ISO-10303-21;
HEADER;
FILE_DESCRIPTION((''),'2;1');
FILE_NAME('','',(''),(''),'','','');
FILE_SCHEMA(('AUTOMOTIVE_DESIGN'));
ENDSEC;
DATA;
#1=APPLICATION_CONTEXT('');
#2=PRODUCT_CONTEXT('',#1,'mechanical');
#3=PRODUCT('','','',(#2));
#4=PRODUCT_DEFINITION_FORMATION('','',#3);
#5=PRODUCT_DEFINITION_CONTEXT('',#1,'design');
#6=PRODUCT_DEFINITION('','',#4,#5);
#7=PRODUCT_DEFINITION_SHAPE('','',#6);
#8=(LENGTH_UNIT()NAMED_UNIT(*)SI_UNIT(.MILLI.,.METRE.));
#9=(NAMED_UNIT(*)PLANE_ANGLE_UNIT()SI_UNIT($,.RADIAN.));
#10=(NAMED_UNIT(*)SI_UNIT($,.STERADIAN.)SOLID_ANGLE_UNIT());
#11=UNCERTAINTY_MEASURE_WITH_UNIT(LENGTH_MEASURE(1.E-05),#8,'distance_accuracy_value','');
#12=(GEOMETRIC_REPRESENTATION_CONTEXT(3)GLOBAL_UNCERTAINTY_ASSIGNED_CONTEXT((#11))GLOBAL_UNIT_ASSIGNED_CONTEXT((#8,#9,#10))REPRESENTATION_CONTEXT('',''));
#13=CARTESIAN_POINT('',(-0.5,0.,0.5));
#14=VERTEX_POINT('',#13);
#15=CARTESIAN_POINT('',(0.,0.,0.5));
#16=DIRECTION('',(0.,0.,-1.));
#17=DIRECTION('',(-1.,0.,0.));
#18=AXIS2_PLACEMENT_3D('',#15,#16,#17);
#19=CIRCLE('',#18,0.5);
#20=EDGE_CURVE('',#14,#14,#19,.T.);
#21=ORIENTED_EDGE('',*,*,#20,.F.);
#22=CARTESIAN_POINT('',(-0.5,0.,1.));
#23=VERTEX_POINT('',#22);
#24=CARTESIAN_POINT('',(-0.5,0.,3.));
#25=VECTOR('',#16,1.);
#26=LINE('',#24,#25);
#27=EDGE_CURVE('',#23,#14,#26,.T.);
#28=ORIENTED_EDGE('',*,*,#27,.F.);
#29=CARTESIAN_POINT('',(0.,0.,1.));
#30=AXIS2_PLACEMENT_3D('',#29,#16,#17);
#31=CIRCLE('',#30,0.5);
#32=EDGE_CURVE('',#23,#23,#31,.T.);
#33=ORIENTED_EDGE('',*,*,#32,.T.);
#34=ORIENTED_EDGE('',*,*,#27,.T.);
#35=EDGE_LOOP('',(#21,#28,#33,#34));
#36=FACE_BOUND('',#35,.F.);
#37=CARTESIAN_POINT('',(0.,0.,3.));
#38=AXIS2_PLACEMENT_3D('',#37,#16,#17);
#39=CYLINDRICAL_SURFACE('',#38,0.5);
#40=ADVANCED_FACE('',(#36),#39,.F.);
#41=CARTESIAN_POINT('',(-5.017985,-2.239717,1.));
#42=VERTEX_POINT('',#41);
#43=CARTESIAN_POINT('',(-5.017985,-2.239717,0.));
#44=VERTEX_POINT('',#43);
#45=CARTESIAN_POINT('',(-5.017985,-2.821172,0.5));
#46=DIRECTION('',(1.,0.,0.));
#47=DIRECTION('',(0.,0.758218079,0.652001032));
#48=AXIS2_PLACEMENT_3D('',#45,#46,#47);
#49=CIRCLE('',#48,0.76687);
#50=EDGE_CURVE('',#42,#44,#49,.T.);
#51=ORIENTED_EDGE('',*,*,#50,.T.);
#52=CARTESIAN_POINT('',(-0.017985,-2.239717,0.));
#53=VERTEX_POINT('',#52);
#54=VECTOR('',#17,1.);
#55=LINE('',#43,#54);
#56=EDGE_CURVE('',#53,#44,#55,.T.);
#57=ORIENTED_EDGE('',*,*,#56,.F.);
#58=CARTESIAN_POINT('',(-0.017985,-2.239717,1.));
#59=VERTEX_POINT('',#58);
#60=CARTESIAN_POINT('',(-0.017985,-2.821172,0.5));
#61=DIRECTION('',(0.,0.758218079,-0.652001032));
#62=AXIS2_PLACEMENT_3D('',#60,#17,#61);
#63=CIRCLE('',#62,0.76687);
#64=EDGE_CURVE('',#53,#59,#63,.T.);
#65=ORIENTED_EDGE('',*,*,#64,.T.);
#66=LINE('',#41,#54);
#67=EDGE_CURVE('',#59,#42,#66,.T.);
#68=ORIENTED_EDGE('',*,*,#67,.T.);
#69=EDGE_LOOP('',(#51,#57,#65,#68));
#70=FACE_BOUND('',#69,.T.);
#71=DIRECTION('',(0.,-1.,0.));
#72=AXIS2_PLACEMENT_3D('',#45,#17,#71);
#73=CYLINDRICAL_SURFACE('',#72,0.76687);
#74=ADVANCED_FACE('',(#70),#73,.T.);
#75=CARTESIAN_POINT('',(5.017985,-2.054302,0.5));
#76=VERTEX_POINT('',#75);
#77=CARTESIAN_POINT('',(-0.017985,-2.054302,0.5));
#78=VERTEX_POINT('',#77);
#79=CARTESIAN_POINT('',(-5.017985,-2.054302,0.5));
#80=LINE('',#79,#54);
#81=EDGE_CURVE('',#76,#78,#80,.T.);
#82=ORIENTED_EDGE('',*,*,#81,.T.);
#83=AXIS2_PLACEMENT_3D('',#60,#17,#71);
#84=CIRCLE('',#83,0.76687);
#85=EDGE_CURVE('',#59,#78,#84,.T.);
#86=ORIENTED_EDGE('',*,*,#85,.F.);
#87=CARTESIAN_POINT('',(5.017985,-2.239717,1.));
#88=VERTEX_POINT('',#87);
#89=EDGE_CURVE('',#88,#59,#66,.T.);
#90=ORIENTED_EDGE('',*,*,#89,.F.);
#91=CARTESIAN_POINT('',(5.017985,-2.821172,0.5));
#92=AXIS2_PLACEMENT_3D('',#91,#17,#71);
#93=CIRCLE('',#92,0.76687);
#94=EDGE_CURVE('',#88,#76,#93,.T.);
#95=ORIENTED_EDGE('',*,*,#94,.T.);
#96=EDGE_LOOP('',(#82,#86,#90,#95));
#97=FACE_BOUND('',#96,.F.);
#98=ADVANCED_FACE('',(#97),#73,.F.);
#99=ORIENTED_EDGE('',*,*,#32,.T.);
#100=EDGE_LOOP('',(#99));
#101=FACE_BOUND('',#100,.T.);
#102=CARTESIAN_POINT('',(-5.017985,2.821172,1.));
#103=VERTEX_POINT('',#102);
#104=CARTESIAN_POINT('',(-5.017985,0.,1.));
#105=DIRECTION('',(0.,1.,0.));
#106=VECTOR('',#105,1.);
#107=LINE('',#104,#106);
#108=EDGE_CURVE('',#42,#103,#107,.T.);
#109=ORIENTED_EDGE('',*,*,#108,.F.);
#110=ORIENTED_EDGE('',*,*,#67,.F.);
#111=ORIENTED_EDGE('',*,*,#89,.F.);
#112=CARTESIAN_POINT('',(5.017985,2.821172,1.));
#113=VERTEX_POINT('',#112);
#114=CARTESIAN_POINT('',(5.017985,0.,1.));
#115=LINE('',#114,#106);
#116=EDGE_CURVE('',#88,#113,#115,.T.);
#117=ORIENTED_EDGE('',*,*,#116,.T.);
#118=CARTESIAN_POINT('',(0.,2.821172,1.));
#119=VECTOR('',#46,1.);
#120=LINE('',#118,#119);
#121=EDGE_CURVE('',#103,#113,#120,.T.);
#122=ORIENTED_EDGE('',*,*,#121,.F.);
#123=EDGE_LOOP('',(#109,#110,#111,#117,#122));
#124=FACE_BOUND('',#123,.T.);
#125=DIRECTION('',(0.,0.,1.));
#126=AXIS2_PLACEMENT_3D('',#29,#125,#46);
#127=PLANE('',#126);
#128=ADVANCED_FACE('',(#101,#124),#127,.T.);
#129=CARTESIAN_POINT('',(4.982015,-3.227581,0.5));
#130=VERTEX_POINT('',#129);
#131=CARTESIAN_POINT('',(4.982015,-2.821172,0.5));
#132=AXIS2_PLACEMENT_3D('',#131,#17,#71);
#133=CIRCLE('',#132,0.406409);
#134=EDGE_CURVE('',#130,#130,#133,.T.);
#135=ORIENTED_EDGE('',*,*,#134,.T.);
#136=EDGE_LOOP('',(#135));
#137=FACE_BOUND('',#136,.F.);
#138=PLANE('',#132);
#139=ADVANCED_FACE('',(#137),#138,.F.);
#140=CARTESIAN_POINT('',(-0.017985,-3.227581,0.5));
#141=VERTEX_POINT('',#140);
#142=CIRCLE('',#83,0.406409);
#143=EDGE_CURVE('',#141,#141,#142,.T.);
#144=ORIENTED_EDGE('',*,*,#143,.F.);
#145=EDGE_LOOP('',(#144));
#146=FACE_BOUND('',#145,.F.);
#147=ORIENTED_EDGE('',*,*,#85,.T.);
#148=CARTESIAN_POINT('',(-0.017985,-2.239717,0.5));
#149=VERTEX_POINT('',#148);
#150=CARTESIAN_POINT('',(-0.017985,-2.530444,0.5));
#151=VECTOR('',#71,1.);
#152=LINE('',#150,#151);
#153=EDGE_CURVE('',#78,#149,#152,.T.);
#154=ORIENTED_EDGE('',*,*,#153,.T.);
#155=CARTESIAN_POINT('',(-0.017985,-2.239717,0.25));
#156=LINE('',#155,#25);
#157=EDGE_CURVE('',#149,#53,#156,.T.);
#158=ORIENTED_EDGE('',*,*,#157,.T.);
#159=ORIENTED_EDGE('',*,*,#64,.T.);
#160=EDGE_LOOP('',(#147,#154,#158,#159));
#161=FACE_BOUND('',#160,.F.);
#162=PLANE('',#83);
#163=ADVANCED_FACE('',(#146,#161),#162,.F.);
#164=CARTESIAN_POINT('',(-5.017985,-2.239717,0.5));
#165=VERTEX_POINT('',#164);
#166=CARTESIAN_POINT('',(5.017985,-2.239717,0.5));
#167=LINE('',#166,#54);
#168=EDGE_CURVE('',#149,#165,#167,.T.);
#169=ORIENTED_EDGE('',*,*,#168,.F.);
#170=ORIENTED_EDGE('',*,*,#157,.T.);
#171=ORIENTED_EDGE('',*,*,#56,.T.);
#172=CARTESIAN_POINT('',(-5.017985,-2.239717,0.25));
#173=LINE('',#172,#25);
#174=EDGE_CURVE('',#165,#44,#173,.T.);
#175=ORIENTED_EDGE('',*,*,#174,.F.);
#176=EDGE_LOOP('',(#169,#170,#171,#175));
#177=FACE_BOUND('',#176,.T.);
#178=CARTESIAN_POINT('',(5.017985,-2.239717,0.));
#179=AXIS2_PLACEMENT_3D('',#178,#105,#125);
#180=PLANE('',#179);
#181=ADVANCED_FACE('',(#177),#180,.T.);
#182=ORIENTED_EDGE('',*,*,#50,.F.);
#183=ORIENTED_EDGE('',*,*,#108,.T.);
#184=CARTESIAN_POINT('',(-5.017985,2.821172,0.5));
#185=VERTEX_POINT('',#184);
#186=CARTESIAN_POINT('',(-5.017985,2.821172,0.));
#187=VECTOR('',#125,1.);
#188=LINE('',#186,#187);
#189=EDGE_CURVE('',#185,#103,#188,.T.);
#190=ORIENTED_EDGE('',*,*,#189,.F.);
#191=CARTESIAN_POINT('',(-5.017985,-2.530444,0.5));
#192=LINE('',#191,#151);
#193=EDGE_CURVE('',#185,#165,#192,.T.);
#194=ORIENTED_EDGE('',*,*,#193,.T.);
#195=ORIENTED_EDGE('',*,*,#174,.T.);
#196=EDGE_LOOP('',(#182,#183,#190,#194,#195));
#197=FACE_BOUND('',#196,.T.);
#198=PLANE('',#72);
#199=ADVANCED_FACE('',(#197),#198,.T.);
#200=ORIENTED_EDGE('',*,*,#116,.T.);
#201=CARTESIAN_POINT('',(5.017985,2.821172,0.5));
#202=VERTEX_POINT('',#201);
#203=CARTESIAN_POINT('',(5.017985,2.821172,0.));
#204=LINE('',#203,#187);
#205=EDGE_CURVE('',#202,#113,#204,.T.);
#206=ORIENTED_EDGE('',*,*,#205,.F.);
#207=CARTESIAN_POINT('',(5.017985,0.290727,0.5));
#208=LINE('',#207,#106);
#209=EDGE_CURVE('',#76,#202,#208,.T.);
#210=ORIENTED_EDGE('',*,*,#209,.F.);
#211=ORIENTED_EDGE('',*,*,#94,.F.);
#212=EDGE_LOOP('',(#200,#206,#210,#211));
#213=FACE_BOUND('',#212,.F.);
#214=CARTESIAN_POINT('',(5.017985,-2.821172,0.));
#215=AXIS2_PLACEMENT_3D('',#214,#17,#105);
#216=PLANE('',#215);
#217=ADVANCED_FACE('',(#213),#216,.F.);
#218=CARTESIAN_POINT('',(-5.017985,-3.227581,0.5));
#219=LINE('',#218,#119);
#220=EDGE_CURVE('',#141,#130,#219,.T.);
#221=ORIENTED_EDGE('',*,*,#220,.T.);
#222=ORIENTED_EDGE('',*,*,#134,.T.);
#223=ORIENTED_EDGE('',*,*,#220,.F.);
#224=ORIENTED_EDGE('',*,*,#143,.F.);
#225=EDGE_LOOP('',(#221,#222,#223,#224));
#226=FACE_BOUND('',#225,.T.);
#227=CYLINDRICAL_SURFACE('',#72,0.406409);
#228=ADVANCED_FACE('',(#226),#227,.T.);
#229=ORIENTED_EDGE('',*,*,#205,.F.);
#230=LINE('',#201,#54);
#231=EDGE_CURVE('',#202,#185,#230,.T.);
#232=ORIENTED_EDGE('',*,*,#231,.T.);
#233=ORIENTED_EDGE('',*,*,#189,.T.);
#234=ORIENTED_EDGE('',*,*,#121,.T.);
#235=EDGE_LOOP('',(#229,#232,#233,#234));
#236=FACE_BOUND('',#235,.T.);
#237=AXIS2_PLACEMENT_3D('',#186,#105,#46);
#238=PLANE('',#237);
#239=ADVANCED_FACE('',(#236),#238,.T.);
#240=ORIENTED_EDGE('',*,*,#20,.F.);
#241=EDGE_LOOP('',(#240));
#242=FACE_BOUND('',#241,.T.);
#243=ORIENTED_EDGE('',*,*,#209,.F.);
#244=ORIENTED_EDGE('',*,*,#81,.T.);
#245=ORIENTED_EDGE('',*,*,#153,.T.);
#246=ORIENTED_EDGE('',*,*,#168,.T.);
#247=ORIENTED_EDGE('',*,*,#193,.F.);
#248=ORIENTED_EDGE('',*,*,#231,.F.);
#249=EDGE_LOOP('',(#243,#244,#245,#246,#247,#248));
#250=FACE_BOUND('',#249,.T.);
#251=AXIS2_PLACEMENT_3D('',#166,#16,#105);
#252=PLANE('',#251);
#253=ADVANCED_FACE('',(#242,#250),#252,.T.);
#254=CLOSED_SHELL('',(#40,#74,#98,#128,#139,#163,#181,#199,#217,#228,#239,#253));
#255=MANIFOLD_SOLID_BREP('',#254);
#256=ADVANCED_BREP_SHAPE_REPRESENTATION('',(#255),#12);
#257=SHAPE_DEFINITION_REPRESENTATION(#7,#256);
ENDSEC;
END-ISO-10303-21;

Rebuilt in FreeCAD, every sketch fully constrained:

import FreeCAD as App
import Part
import Sketcher
from FreeCAD import Vector
Q = App.Units.Quantity


def add_polygon(sketch, points):
    """Adds a closed chain of lines whose ends are joined by coincident constraints."""
    first, n = sketch.GeometryCount, len(points)
    for a, b in zip(points, points[1:] + points[:1]):
        sketch.addGeometry(Part.LineSegment(App.Vector(*a, 0), App.Vector(*b, 0)), False)
    for i in range(n):
        sketch.addConstraint(Sketcher.Constraint("Coincident", first + i, 2, first + (i + 1) % n, 1))

doc = App.newDocument("Part")
body = doc.addObject("PartDesign::Body", "Body")

sketch1 = body.newObject("Sketcher::SketchObject", "Sketch")
sketch1.AttachmentSupport = (doc.getObject("XY_Plane"), [""])
sketch1.MapMode = "FlatFace"
add_polygon(sketch1, [(-5, 3), (-5, -3), (5, -3), (5, 3)])
sketch1.addConstraint([
    Sketcher.Constraint("Vertical", 0),
    Sketcher.Constraint("Horizontal", 1),
    Sketcher.Constraint("Vertical", 2),
    Sketcher.Constraint("Horizontal", 3),
    Sketcher.Constraint("Symmetric", 0, 2, 2, 2, -1, 1),
    Sketcher.Constraint("DistanceX", 1, 1, 1, 2, Q("10.03597 mm")),
    Sketcher.Constraint("DistanceY", 0, 2, 0, 1, Q("5.642343 mm")),
])
pad1 = body.newObject("PartDesign::Pad", "Pad")
pad1.Profile = sketch1
pad1.Length = 1

sketch2 = body.newObject("Sketcher::SketchObject", "Sketch001")
sketch2.AttachmentSupport = (doc.getObject("YZ_Plane"), [""])
sketch2.MapMode = "FlatFace"
sketch2.AttachmentOffset = App.Placement(Vector(0, 0, -5.017985), App.Rotation())
sketch2.addGeometry(Part.Circle(Vector(-2.8, 0.5, 0), Vector(0, 0, 1), 0.8), False)
sketch2.addConstraint([
    Sketcher.Constraint("DistanceY", -1, 1, 0, 3, Q("0.5 mm")),
    Sketcher.Constraint("Diameter", 0, Q("1.53374 mm")),
    Sketcher.Constraint("DistanceX", 0, 3, -1, 1, Q("2.821172 mm")),
])
pocket1 = body.newObject("PartDesign::Pocket", "Pocket")
pocket1.Profile = sketch2
pocket1.Length = 10.08
pocket1.Reversed = True

sketch3 = body.newObject("Sketcher::SketchObject", "Sketch002")
sketch3.AttachmentSupport = (doc.getObject("YZ_Plane"), [""])
sketch3.MapMode = "FlatFace"
sketch3.AttachmentOffset = App.Placement(Vector(0, 0, -5.017985), App.Rotation())
sketch3.addGeometry(Part.Circle(Vector(-2.8, 0.5, 0), Vector(0, 0, 1), 0.8), False)
sketch3.addConstraint([
    Sketcher.Constraint("DistanceY", -1, 1, 0, 3, Q("0.5 mm")),
    Sketcher.Constraint("Diameter", 0, Q("1.53374 mm")),
    Sketcher.Constraint("DistanceX", 0, 3, -1, 1, Q("2.821172 mm")),
])
pad2 = body.newObject("PartDesign::Pad", "Pad001")
pad2.Profile = sketch3
pad2.Length = 5

sketch4 = body.newObject("Sketcher::SketchObject", "Sketch003")
sketch4.AttachmentSupport = (doc.getObject("YZ_Plane"), [""])
sketch4.MapMode = "FlatFace"
sketch4.AttachmentOffset = App.Placement(Vector(0, 0, -5.017985), App.Rotation())
sketch4.addGeometry(Part.Circle(Vector(-2.82, 0.5, 0), Vector(0, 0, 1), 0.41), False)
sketch4.addConstraint([
    Sketcher.Constraint("DistanceY", -1, 1, 0, 3, Q("0.5 mm")),
    Sketcher.Constraint("Diameter", 0, Q("0.812818 mm")),
    Sketcher.Constraint("DistanceX", 0, 3, -1, 1, Q("2.821172 mm")),
])
pad3 = body.newObject("PartDesign::Pad", "Pad002")
pad3.Profile = sketch4
pad3.Length = 10

sketch5 = body.newObject("Sketcher::SketchObject", "Sketch004")
sketch5.AttachmentSupport = (doc.getObject("XY_Plane"), [""])
sketch5.MapMode = "FlatFace"
sketch5.AttachmentOffset = App.Placement(Vector(0, 0, 1), App.Rotation())
sketch5.addGeometry(Part.Circle(Vector(0, 0, 0), Vector(0, 0, 1), 0.5), False)
sketch5.addConstraint([
    Sketcher.Constraint("Coincident", 0, 3, -1, 1),
    Sketcher.Constraint("Diameter", 0, Q("1 mm")),
])
doc.recompute()
hole = body.newObject("PartDesign::Hole", "Hole")
hole.Profile = sketch5
hole.ThreadType = "None"
hole.Diameter = 1
hole.DepthType = "Dimension"
hole.Depth = 2
hole.DrillPoint = "Angled"
hole.DrillPointAngle = 118

sketch6 = body.newObject("Sketcher::SketchObject", "Sketch005")
sketch6.AttachmentSupport = (doc.getObject("YZ_Plane"), [""])
sketch6.MapMode = "FlatFace"
sketch6.AttachmentOffset = App.Placement(Vector(0, 0, 5.017985), App.Rotation())
add_polygon(sketch6, [(-2.2, 0.5), (-2.2, 0), (2.8, 0), (2.8, 0.5)])
sketch6.addConstraint([
    Sketcher.Constraint("Vertical", 0),
    Sketcher.Constraint("Horizontal", 1),
    Sketcher.Constraint("Vertical", 2),
    Sketcher.Constraint("Horizontal", 3),
    Sketcher.Constraint("PointOnObject", 0, 2, -1),
    Sketcher.Constraint("DistanceY", 0, 2, 0, 1, Q("0.5 mm")),
    Sketcher.Constraint("DistanceX", 1, 1, 1, 2, Q("5.060889 mm")),
    Sketcher.Constraint("DistanceX", -1, 1, 1, 2, Q("2.821172 mm")),
])
pocket2 = body.newObject("PartDesign::Pocket", "Pocket001")
pocket2.Profile = sketch6
pocket2.Length = 25

doc.recompute()
